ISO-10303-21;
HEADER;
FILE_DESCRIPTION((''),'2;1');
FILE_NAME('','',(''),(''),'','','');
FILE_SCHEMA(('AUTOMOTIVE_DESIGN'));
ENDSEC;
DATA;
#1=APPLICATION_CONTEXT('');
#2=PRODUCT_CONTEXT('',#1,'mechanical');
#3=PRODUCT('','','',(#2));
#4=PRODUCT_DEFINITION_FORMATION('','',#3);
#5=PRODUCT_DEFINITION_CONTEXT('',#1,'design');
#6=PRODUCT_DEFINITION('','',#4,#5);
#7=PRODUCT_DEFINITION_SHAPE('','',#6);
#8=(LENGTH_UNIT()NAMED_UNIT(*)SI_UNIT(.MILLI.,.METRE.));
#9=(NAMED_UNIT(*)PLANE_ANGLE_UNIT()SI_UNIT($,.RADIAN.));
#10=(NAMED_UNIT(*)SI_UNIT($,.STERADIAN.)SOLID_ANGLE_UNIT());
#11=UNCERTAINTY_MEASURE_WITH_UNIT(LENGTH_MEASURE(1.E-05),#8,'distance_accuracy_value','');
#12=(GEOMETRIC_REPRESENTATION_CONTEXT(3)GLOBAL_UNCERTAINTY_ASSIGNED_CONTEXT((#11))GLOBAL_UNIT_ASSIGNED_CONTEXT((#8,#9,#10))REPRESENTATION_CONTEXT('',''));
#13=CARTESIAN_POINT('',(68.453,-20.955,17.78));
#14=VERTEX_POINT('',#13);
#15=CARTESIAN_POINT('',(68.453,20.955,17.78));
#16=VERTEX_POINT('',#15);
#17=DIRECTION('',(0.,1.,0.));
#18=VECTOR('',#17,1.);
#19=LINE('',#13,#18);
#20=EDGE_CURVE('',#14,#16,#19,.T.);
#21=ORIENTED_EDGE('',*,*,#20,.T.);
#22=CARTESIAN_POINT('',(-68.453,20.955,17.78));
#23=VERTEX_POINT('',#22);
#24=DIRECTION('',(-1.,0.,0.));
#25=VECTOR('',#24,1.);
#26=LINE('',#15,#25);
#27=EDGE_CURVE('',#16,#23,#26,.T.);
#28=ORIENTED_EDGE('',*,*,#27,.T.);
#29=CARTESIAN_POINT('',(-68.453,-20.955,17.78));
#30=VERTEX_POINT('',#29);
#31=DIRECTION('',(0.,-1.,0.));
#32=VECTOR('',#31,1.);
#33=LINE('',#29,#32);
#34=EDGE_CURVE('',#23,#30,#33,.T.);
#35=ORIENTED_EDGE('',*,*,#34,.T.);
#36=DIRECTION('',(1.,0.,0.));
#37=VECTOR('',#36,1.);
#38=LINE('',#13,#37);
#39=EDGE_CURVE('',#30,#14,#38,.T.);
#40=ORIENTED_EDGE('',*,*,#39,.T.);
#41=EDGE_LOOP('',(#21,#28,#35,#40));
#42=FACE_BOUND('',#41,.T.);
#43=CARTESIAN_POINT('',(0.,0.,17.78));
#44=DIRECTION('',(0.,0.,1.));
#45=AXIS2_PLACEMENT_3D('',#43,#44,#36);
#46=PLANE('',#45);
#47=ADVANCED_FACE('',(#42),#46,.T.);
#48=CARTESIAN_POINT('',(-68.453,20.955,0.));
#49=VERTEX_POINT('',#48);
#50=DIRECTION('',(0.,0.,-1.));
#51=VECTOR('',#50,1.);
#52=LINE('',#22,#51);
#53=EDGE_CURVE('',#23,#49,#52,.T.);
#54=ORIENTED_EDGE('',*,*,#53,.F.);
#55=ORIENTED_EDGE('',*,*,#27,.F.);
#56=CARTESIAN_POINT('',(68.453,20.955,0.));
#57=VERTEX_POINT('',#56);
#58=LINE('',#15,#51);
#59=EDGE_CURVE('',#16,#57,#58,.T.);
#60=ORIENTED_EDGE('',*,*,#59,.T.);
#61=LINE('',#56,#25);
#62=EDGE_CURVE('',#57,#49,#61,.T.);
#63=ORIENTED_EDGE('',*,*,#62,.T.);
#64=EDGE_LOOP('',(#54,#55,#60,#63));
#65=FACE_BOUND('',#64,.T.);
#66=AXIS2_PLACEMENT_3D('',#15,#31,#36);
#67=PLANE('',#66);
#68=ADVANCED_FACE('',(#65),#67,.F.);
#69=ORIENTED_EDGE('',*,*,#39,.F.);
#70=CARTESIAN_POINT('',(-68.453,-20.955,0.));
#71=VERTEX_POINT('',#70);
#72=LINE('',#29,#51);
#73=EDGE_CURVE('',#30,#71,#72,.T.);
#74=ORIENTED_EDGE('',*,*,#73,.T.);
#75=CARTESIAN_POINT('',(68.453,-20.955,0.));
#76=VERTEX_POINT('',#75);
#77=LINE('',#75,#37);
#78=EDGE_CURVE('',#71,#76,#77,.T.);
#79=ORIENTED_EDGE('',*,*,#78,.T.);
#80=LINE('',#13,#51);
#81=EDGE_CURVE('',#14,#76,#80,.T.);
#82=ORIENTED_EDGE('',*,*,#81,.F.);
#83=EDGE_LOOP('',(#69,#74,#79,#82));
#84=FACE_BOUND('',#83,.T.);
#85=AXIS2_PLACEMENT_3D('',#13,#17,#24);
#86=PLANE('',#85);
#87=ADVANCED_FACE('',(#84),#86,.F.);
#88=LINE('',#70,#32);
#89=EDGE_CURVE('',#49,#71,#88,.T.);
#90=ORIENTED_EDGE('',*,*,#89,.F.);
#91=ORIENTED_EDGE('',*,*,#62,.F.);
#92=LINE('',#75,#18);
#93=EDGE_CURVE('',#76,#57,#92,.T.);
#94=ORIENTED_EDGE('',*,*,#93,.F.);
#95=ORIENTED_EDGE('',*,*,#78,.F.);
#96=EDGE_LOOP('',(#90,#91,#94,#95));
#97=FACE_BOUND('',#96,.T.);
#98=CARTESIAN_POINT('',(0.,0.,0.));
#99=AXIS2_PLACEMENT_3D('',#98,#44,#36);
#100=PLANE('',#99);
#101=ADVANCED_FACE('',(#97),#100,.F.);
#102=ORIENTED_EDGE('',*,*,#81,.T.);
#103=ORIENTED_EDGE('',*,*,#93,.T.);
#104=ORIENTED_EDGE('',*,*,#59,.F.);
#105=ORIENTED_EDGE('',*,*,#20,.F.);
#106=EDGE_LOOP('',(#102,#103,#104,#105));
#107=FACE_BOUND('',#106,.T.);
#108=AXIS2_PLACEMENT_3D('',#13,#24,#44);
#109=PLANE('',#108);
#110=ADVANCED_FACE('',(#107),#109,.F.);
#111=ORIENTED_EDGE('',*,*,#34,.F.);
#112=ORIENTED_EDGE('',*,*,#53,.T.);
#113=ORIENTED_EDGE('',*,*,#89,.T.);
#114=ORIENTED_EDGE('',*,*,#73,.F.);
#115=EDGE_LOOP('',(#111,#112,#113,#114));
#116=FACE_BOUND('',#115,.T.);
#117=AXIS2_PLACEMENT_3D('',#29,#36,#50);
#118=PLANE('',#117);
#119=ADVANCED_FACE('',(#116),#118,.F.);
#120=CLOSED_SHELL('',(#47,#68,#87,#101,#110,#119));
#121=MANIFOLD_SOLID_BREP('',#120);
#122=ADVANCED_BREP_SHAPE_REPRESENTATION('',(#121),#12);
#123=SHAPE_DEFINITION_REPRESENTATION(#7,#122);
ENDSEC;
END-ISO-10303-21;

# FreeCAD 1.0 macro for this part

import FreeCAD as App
import Part
import Sketcher
Q = App.Units.Quantity

doc = App.newDocument("Part")
body = doc.addObject("PartDesign::Body", "Body")

sketch1 = doc.addObject("Sketcher::SketchObject", "Sketch")
body.addObject(sketch1)
sketch1.AttachmentSupport = (doc.XY_Plane, [""])
sketch1.MapMode = "FlatFace"
sketch1.addGeometry([
    Part.LineSegment(App.Vector(-68, 21, 0), App.Vector(-68, -21, 0)),
    Part.LineSegment(App.Vector(-68, -21, 0), App.Vector(68, -21, 0)),
    Part.LineSegment(App.Vector(68, -21, 0), App.Vector(68, 21, 0)),
    Part.LineSegment(App.Vector(68, 21, 0), App.Vector(-68, 21, 0)),
], False)
sketch1.addConstraint([
    Sketcher.Constraint("Coincident", 0, 2, 1, 1),
    Sketcher.Constraint("Coincident", 1, 2, 2, 1),
    Sketcher.Constraint("Coincident", 2, 2, 3, 1),
    Sketcher.Constraint("Coincident", 3, 2, 0, 1),
    Sketcher.Constraint("Vertical", 0),
    Sketcher.Constraint("Horizontal", 1),
    Sketcher.Constraint("Vertical", 2),
    Sketcher.Constraint("Horizontal", 3),
    Sketcher.Constraint("Symmetric", 0, 2, 2, 2, -1, 1),
    Sketcher.Constraint("DistanceX", 1, 1, 1, 2, Q("5.39 in")),
    Sketcher.Constraint("DistanceY", 0, 2, 0, 1, Q("1.65 in")),
])
pad1 = doc.addObject("PartDesign::Pad", "Pad")
body.addObject(pad1)
pad1.Profile = sketch1
pad1.Length = Q("0.7 in")

doc.recompute()
